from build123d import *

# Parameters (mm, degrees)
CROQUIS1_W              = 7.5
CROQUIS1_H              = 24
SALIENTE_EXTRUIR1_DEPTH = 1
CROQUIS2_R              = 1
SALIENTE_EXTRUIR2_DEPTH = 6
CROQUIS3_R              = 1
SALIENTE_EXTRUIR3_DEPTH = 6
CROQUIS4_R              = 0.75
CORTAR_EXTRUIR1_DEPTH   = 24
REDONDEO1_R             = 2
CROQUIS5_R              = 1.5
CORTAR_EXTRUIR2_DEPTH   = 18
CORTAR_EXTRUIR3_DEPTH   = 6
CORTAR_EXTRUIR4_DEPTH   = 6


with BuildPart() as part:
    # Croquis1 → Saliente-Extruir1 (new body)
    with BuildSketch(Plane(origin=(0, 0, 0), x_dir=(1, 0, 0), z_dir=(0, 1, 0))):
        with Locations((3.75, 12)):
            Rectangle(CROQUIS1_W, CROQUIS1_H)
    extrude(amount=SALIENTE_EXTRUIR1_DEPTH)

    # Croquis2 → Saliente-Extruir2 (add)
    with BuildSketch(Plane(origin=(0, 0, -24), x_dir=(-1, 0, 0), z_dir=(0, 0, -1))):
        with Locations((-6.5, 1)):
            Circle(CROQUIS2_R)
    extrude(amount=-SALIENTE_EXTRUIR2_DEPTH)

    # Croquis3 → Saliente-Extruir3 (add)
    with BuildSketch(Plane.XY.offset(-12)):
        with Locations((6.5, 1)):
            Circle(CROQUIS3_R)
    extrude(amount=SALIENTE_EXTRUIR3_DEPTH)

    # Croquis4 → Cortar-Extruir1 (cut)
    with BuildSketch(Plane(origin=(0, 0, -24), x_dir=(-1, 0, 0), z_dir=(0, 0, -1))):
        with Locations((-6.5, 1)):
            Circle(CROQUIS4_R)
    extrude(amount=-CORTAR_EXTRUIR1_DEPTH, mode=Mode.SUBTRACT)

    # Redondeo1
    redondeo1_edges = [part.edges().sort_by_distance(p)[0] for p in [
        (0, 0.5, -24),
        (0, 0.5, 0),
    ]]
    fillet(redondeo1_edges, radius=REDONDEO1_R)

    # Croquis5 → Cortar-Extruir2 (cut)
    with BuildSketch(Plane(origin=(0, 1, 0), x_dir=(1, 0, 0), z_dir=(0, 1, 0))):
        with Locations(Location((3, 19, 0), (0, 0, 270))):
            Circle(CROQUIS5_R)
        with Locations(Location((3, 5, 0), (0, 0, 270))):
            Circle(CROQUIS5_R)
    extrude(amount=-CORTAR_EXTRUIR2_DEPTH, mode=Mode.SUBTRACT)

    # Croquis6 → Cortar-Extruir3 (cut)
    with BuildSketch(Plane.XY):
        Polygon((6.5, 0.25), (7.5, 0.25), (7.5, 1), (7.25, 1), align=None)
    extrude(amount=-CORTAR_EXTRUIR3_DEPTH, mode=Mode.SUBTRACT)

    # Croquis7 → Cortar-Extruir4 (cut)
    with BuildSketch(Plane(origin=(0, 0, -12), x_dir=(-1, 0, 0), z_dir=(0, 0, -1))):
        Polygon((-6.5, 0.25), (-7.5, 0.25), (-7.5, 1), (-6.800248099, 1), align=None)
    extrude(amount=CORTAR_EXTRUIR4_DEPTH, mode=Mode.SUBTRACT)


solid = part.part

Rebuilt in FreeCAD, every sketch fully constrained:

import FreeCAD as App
import Part
import Sketcher

V = App.Vector
Q = App.Units.Quantity


def edges_at(feature, points):
    """Names of the edges that pass closest to the given points."""
    edges = feature.Shape.Edges
    near = lambda p: min(range(len(edges)), key=lambda i: edges[i].distToShape(Part.Vertex(*p))[0])
    return sorted({f"Edge{near(p) + 1}" for p in points})

doc = App.newDocument("Part")
body = doc.addObject("PartDesign::Body", "Body")

sketch1 = doc.addObject("Sketcher::SketchObject", "Sketch")
body.addObject(sketch1)
sketch1.AttachmentSupport = (doc.XZ_Plane, [""])
sketch1.MapMode = "FlatFace"
sketch1.addGeometry(Part.LineSegment(V(0, -24, 0), V(0, 0, 0)), False)
sketch1.addGeometry(Part.LineSegment(V(0, 0, 0), V(7.5, 0, 0)), False)
sketch1.addGeometry(Part.LineSegment(V(7.5, 0, 0), V(7.5, -24, 0)), False)
sketch1.addGeometry(Part.LineSegment(V(7.5, -24, 0), V(0, -24, 0)), False)
sketch1.addConstraint(Sketcher.Constraint("Coincident", 0, 2, 1, 1))
sketch1.addConstraint(Sketcher.Constraint("Coincident", 1, 2, 2, 1))
sketch1.addConstraint(Sketcher.Constraint("Coincident", 2, 2, 3, 1))
sketch1.addConstraint(Sketcher.Constraint("Coincident", 3, 2, 0, 1))
sketch1.addConstraint(Sketcher.Constraint("Vertical", 0))
sketch1.addConstraint(Sketcher.Constraint("Horizontal", 1))
sketch1.addConstraint(Sketcher.Constraint("Vertical", 2))
sketch1.addConstraint(Sketcher.Constraint("Horizontal", 3))
sketch1.addConstraint(Sketcher.Constraint("Coincident", 0, 2, -1, 1))
sketch1.addConstraint(Sketcher.Constraint("DistanceY", 0, 1, 0, 2, Q("24 mm")))
sketch1.addConstraint(Sketcher.Constraint("DistanceX", 1, 1, 1, 2, Q("7.5 mm")))
pad1 = doc.addObject("PartDesign::Pad", "Pad")
body.addObject(pad1)
pad1.Profile = sketch1
pad1.Length = 1
pad1.Reversed = True

sketch2 = doc.addObject("Sketcher::SketchObject", "Sketch001")
body.addObject(sketch2)
sketch2.AttachmentSupport = (doc.XY_Plane, [""])
sketch2.MapMode = "FlatFace"
sketch2.AttachmentOffset = App.Placement(V(0, 0, -24), App.Rotation())
sketch2.addGeometry(Part.Circle(V(6.5, 1, 0), V(0, 0, 1), 1), False)
sketch2.addConstraint(Sketcher.Constraint("Diameter", 0, Q("2 mm")))
sketch2.addConstraint(Sketcher.Constraint("DistanceY", -1, 1, 0, 3, Q("1 mm")))
sketch2.addConstraint(Sketcher.Constraint("DistanceX", -1, 1, 0, 3, Q("6.5 mm")))
pad2 = doc.addObject("PartDesign::Pad", "Pad001")
body.addObject(pad2)
pad2.Profile = sketch2
pad2.Length = 6

sketch3 = doc.addObject("Sketcher::SketchObject", "Sketch002")
body.addObject(sketch3)
sketch3.AttachmentSupport = (doc.XY_Plane, [""])
sketch3.MapMode = "FlatFace"
sketch3.AttachmentOffset = App.Placement(V(0, 0, -12), App.Rotation())
sketch3.addGeometry(Part.Circle(V(6.5, 1, 0), V(0, 0, 1), 1), False)
sketch3.addConstraint(Sketcher.Constraint("Diameter", 0, Q("2 mm")))
sketch3.addConstraint(Sketcher.Constraint("DistanceY", -1, 1, 0, 3, Q("1 mm")))
sketch3.addConstraint(Sketcher.Constraint("DistanceX", -1, 1, 0, 3, Q("6.5 mm")))
pad3 = doc.addObject("PartDesign::Pad", "Pad002")
body.addObject(pad3)
pad3.Profile = sketch3
pad3.Length = 6

sketch4 = doc.addObject("Sketcher::SketchObject", "Sketch003")
body.addObject(sketch4)
sketch4.AttachmentSupport = (doc.XY_Plane, [""])
sketch4.MapMode = "FlatFace"
sketch4.AttachmentOffset = App.Placement(V(0, 0, -24), App.Rotation())
sketch4.addGeometry(Part.Circle(V(6.5, 1, 0), V(0, 0, 1), 0.75), False)
sketch4.addConstraint(Sketcher.Constraint("Diameter", 0, Q("1.5 mm")))
sketch4.addConstraint(Sketcher.Constraint("DistanceY", -1, 1, 0, 3, Q("1 mm")))
sketch4.addConstraint(Sketcher.Constraint("DistanceX", -1, 1, 0, 3, Q("6.5 mm")))
pocket1 = doc.addObject("PartDesign::Pocket", "Pocket")
body.addObject(pocket1)
pocket1.Profile = sketch4
pocket1.Length = 24
pocket1.Reversed = True
doc.recompute()

fillet = doc.addObject("PartDesign::Fillet", "Fillet")
body.addObject(fillet)
fillet.Base = (pocket1, edges_at(pocket1, [(0, 0.5, -24), (0, 0.5, 0)]))
fillet.Radius = 2

sketch5 = doc.addObject("Sketcher::SketchObject", "Sketch004")
body.addObject(sketch5)
sketch5.AttachmentSupport = (doc.XZ_Plane, [""])
sketch5.MapMode = "FlatFace"
sketch5.AttachmentOffset = App.Placement(V(0, 0, -1), App.Rotation())
sketch5.addGeometry(Part.Circle(V(3, -19, 0), V(0, 0, 1), 1.5), False)
sketch5.addGeometry(Part.Circle(V(3, -5, 0), V(0, 0, 1), 1.5), False)
sketch5.addConstraint(Sketcher.Constraint("Equal", 0, 1))
sketch5.addConstraint(Sketcher.Constraint("Vertical", 0, 3, 1, 3))
sketch5.addConstraint(Sketcher.Constraint("Diameter", 0, Q("3 mm")))
sketch5.addConstraint(Sketcher.Constraint("DistanceX", -1, 1, 0, 3, Q("3 mm")))
sketch5.addConstraint(Sketcher.Constraint("DistanceY", 0, 3, -1, 1, Q("19 mm")))
sketch5.addConstraint(Sketcher.Constraint("DistanceY", 1, 3, -1, 1, Q("5 mm")))
pocket2 = doc.addObject("PartDesign::Pocket", "Pocket001")
body.addObject(pocket2)
pocket2.Profile = sketch5
pocket2.Length = 18
pocket2.Reversed = True

sketch6 = doc.addObject("Sketcher::SketchObject", "Sketch005")
body.addObject(sketch6)
sketch6.AttachmentSupport = (doc.XY_Plane, [""])
sketch6.MapMode = "FlatFace"
sketch6.addGeometry(Part.LineSegment(V(6.5, 0.25, 0), V(7.5, 0.25, 0)), False)
sketch6.addGeometry(Part.LineSegment(V(7.5, 0.25, 0), V(7.5, 1, 0)), False)
sketch6.addGeometry(Part.LineSegment(V(7.5, 1, 0), V(7.25, 1, 0)), False)
sketch6.addGeometry(Part.LineSegment(V(7.25, 1, 0), V(6.5, 0.25, 0)), False)
sketch6.addConstraint(Sketcher.Constraint("Coincident", 0, 2, 1, 1))
sketch6.addConstraint(Sketcher.Constraint("Coincident", 1, 2, 2, 1))
sketch6.addConstraint(Sketcher.Constraint("Coincident", 2, 2, 3, 1))
sketch6.addConstraint(Sketcher.Constraint("Coincident", 3, 2, 0, 1))
sketch6.addConstraint(Sketcher.Constraint("Horizontal", 0))
sketch6.addConstraint(Sketcher.Constraint("Vertical", 1))
sketch6.addConstraint(Sketcher.Constraint("Horizontal", 2))
sketch6.addConstraint(Sketcher.Constraint("DistanceX", 0, 1, 0, 2, Q("1 mm")))
sketch6.addConstraint(Sketcher.Constraint("Angle", 3, Q("-135 deg")))
sketch6.addConstraint(Sketcher.Constraint("DistanceY", -1, 1, 1, 2, Q("1 mm")))
sketch6.addConstraint(Sketcher.Constraint("DistanceX", 2, 2, 2, 1, Q("0.25 mm")))
sketch6.addConstraint(Sketcher.Constraint("DistanceX", -1, 1, 0, 2, Q("7.5 mm")))
pocket3 = doc.addObject("PartDesign::Pocket", "Pocket002")
body.addObject(pocket3)
pocket3.Profile = sketch6
pocket3.Length = 6

sketch7 = doc.addObject("Sketcher::SketchObject", "Sketch006")
body.addObject(sketch7)
sketch7.AttachmentSupport = (doc.XY_Plane, [""])
sketch7.MapMode = "FlatFace"
sketch7.AttachmentOffset = App.Placement(V(0, 0, -12), App.Rotation())
sketch7.addGeometry(Part.LineSegment(V(7.5, 0.25, 0), V(6.5, 0.25, 0)), False)
sketch7.addGeometry(Part.LineSegment(V(6.5, 0.25, 0), V(6.800248, 1, 0)), False)
sketch7.addGeometry(Part.LineSegment(V(6.800248, 1, 0), V(7.5, 1, 0)), False)
sketch7.addGeometry(Part.LineSegment(V(7.5, 1, 0), V(7.5, 0.25, 0)), False)
sketch7.addConstraint(Sketcher.Constraint("Coincident", 0, 2, 1, 1))
sketch7.addConstraint(Sketcher.Constraint("Coincident", 1, 2, 2, 1))
sketch7.addConstraint(Sketcher.Constraint("Coincident", 2, 2, 3, 1))
sketch7.addConstraint(Sketcher.Constraint("Coincident", 3, 2, 0, 1))
sketch7.addConstraint(Sketcher.Constraint("Horizontal", 0))
sketch7.addConstraint(Sketcher.Constraint("Horizontal", 2))
sketch7.addConstraint(Sketcher.Constraint("Vertical", 3))
sketch7.addConstraint(Sketcher.Constraint("DistanceX", 0, 2, 0, 1, Q("1 mm")))
sketch7.addConstraint(Sketcher.Constraint("DistanceY", -1, 1, 1, 2, Q("1 mm")))
sketch7.addConstraint(Sketcher.Constraint("DistanceY", 3, 2, 3, 1, Q("0.75 mm")))
sketch7.addConstraint(Sketcher.Constraint("DistanceX", -1, 1, 0, 2, Q("6.5 mm")))
sketch7.addConstraint(Sketcher.Constraint("DistanceX", 2, 1, 2, 2, Q("0.699752 mm")))
pocket4 = doc.addObject("PartDesign::Pocket", "Pocket003")
body.addObject(pocket4)
pocket4.Profile = sketch7
pocket4.Length = 6

doc.recompute()
